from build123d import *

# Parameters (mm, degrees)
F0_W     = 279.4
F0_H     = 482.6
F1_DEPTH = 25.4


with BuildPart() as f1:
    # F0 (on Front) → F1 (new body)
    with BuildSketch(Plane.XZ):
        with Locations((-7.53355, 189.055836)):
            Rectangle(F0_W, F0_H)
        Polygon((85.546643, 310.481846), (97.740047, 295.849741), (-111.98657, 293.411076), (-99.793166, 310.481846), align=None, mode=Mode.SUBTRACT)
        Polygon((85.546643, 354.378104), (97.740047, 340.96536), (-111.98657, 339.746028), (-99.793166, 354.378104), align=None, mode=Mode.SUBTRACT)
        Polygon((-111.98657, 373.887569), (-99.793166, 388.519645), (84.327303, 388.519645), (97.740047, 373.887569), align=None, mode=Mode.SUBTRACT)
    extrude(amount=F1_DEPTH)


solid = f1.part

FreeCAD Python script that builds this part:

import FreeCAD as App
import Part
import Sketcher
Q = App.Units.Quantity

doc = App.newDocument("Part")
body = doc.addObject("PartDesign::Body", "Body")

sketch1 = doc.addObject("Sketcher::SketchObject", "Sketch")
body.addObject(sketch1)
sketch1.AttachmentSupport = (doc.XZ_Plane, [""])
sketch1.MapMode = "FlatFace"
sketch1.addGeometry([
    Part.LineSegment(App.Vector(-147.23355, 430.355836, 0), App.Vector(-147.23355, -52.244164, 0)),
    Part.LineSegment(App.Vector(-147.23355, -52.244164, 0), App.Vector(132.16645, -52.244164, 0)),
    Part.LineSegment(App.Vector(132.16645, -52.244164, 0), App.Vector(132.16645, 430.355836, 0)),
    Part.LineSegment(App.Vector(132.16645, 430.355836, 0), App.Vector(-147.23355, 430.355836, 0)),
    Part.LineSegment(App.Vector(-99.793166, 310.481846, 0), App.Vector(85.546643, 310.481846, 0)),
    Part.LineSegment(App.Vector(85.546643, 310.481846, 0), App.Vector(97.740047, 295.849741, 0)),
    Part.LineSegment(App.Vector(97.740047, 295.849741, 0), App.Vector(-111.98657, 293.411076, 0)),
    Part.LineSegment(App.Vector(-111.98657, 293.411076, 0), App.Vector(-99.793166, 310.481846, 0)),
    Part.LineSegment(App.Vector(-99.793166, 354.378104, 0), App.Vector(85.546643, 354.378104, 0)),
    Part.LineSegment(App.Vector(85.546643, 354.378104, 0), App.Vector(97.740047, 340.96536, 0)),
    Part.LineSegment(App.Vector(97.740047, 340.96536, 0), App.Vector(-111.98657, 339.746028, 0)),
    Part.LineSegment(App.Vector(-111.98657, 339.746028, 0), App.Vector(-99.793166, 354.378104, 0)),
    Part.LineSegment(App.Vector(97.740047, 373.887569, 0), App.Vector(-111.98657, 373.887569, 0)),
    Part.LineSegment(App.Vector(-111.98657, 373.887569, 0), App.Vector(-99.793166, 388.519645, 0)),
    Part.LineSegment(App.Vector(-99.793166, 388.519645, 0), App.Vector(84.327303, 388.519645, 0)),
    Part.LineSegment(App.Vector(84.327303, 388.519645, 0), App.Vector(97.740047, 373.887569, 0)),
], False)
sketch1.addConstraint([
    Sketcher.Constraint("Coincident", 0, 2, 1, 1),
    Sketcher.Constraint("Coincident", 1, 2, 2, 1),
    Sketcher.Constraint("Coincident", 2, 2, 3, 1),
    Sketcher.Constraint("Coincident", 3, 2, 0, 1),
    Sketcher.Constraint("Coincident", 4, 2, 5, 1),
    Sketcher.Constraint("Coincident", 5, 2, 6, 1),
    Sketcher.Constraint("Coincident", 6, 2, 7, 1),
    Sketcher.Constraint("Coincident", 7, 2, 4, 1),
    Sketcher.Constraint("Coincident", 8, 2, 9, 1),
    Sketcher.Constraint("Coincident", 9, 2, 10, 1),
    Sketcher.Constraint("Coincident", 10, 2, 11, 1),
    Sketcher.Constraint("Coincident", 11, 2, 8, 1),
    Sketcher.Constraint("Coincident", 12, 2, 13, 1),
    Sketcher.Constraint("Coincident", 13, 2, 14, 1),
    Sketcher.Constraint("Coincident", 14, 2, 15, 1),
    Sketcher.Constraint("Coincident", 15, 2, 12, 1),
    Sketcher.Constraint("Vertical", 0),
    Sketcher.Constraint("Horizontal", 1),
    Sketcher.Constraint("Vertical", 2),
    Sketcher.Constraint("Horizontal", 3),
    Sketcher.Constraint("Horizontal", 4),
    Sketcher.Constraint("Horizontal", 8),
    Sketcher.Constraint("Horizontal", 12),
    Sketcher.Constraint("Horizontal", 14),
    Sketcher.Constraint("Parallel", 11, 13),
    Sketcher.Constraint("Vertical", 4, 2, 8, 2),
    Sketcher.Constraint("Vertical", 5, 2, 9, 2),
    Sketcher.Constraint("Vertical", 6, 2, 10, 2),
    Sketcher.Constraint("Vertical", 7, 2, 11, 2),
    Sketcher.Constraint("Vertical", 10, 2, 12, 2),
    Sketcher.Constraint("Vertical", 11, 2, 13, 2),
    Sketcher.Constraint("Vertical", 9, 2, 15, 2),
    Sketcher.Constraint("DistanceX", 1, 1, 1, 2, Q("11 in")),
    Sketcher.Constraint("DistanceY", 0, 2, 0, 1, Q("19 in")),
    Sketcher.Constraint("Distance", 11, Q("19.046699 mm")),
    Sketcher.Constraint("DistanceX", 4, 1, 4, 2, Q("185.339809 mm")),
    Sketcher.Constraint("DistanceX", 14, 1, 14, 2, Q("184.120469 mm")),
    Sketcher.Constraint("DistanceY", 7, 2, 13, 2, Q("78.037799 mm")),
    Sketcher.Constraint("Distance", 5, Q("19.046721 mm")),
    Sketcher.Constraint("Distance", 7, Q("20.978329 mm")),
    Sketcher.Constraint("Distance", 10, Q("209.730162 mm")),
    Sketcher.Constraint("DistanceX", 12, 2, 12, 1, Q("209.726617 mm")),
    Sketcher.Constraint("DistanceX", 0, 2, -1, 1, Q("147.23355 mm")),
    Sketcher.Constraint("DistanceY", -1, 1, 5, 2, Q("295.849741 mm")),
    Sketcher.Constraint("DistanceX", 6, 2, -1, 1, Q("111.98657 mm")),
    Sketcher.Constraint("DistanceY", -1, 1, 9, 2, Q("340.96536 mm")),
    Sketcher.Constraint("DistanceY", -1, 1, 12, 2, Q("373.887569 mm")),
    Sketcher.Constraint("DistanceY", 4, 2, 2, 2, Q("119.87399 mm")),
])
pad1 = doc.addObject("PartDesign::Pad", "Pad")
body.addObject(pad1)
pad1.Profile = sketch1
pad1.Length = Q("1 in")

doc.recompute()
